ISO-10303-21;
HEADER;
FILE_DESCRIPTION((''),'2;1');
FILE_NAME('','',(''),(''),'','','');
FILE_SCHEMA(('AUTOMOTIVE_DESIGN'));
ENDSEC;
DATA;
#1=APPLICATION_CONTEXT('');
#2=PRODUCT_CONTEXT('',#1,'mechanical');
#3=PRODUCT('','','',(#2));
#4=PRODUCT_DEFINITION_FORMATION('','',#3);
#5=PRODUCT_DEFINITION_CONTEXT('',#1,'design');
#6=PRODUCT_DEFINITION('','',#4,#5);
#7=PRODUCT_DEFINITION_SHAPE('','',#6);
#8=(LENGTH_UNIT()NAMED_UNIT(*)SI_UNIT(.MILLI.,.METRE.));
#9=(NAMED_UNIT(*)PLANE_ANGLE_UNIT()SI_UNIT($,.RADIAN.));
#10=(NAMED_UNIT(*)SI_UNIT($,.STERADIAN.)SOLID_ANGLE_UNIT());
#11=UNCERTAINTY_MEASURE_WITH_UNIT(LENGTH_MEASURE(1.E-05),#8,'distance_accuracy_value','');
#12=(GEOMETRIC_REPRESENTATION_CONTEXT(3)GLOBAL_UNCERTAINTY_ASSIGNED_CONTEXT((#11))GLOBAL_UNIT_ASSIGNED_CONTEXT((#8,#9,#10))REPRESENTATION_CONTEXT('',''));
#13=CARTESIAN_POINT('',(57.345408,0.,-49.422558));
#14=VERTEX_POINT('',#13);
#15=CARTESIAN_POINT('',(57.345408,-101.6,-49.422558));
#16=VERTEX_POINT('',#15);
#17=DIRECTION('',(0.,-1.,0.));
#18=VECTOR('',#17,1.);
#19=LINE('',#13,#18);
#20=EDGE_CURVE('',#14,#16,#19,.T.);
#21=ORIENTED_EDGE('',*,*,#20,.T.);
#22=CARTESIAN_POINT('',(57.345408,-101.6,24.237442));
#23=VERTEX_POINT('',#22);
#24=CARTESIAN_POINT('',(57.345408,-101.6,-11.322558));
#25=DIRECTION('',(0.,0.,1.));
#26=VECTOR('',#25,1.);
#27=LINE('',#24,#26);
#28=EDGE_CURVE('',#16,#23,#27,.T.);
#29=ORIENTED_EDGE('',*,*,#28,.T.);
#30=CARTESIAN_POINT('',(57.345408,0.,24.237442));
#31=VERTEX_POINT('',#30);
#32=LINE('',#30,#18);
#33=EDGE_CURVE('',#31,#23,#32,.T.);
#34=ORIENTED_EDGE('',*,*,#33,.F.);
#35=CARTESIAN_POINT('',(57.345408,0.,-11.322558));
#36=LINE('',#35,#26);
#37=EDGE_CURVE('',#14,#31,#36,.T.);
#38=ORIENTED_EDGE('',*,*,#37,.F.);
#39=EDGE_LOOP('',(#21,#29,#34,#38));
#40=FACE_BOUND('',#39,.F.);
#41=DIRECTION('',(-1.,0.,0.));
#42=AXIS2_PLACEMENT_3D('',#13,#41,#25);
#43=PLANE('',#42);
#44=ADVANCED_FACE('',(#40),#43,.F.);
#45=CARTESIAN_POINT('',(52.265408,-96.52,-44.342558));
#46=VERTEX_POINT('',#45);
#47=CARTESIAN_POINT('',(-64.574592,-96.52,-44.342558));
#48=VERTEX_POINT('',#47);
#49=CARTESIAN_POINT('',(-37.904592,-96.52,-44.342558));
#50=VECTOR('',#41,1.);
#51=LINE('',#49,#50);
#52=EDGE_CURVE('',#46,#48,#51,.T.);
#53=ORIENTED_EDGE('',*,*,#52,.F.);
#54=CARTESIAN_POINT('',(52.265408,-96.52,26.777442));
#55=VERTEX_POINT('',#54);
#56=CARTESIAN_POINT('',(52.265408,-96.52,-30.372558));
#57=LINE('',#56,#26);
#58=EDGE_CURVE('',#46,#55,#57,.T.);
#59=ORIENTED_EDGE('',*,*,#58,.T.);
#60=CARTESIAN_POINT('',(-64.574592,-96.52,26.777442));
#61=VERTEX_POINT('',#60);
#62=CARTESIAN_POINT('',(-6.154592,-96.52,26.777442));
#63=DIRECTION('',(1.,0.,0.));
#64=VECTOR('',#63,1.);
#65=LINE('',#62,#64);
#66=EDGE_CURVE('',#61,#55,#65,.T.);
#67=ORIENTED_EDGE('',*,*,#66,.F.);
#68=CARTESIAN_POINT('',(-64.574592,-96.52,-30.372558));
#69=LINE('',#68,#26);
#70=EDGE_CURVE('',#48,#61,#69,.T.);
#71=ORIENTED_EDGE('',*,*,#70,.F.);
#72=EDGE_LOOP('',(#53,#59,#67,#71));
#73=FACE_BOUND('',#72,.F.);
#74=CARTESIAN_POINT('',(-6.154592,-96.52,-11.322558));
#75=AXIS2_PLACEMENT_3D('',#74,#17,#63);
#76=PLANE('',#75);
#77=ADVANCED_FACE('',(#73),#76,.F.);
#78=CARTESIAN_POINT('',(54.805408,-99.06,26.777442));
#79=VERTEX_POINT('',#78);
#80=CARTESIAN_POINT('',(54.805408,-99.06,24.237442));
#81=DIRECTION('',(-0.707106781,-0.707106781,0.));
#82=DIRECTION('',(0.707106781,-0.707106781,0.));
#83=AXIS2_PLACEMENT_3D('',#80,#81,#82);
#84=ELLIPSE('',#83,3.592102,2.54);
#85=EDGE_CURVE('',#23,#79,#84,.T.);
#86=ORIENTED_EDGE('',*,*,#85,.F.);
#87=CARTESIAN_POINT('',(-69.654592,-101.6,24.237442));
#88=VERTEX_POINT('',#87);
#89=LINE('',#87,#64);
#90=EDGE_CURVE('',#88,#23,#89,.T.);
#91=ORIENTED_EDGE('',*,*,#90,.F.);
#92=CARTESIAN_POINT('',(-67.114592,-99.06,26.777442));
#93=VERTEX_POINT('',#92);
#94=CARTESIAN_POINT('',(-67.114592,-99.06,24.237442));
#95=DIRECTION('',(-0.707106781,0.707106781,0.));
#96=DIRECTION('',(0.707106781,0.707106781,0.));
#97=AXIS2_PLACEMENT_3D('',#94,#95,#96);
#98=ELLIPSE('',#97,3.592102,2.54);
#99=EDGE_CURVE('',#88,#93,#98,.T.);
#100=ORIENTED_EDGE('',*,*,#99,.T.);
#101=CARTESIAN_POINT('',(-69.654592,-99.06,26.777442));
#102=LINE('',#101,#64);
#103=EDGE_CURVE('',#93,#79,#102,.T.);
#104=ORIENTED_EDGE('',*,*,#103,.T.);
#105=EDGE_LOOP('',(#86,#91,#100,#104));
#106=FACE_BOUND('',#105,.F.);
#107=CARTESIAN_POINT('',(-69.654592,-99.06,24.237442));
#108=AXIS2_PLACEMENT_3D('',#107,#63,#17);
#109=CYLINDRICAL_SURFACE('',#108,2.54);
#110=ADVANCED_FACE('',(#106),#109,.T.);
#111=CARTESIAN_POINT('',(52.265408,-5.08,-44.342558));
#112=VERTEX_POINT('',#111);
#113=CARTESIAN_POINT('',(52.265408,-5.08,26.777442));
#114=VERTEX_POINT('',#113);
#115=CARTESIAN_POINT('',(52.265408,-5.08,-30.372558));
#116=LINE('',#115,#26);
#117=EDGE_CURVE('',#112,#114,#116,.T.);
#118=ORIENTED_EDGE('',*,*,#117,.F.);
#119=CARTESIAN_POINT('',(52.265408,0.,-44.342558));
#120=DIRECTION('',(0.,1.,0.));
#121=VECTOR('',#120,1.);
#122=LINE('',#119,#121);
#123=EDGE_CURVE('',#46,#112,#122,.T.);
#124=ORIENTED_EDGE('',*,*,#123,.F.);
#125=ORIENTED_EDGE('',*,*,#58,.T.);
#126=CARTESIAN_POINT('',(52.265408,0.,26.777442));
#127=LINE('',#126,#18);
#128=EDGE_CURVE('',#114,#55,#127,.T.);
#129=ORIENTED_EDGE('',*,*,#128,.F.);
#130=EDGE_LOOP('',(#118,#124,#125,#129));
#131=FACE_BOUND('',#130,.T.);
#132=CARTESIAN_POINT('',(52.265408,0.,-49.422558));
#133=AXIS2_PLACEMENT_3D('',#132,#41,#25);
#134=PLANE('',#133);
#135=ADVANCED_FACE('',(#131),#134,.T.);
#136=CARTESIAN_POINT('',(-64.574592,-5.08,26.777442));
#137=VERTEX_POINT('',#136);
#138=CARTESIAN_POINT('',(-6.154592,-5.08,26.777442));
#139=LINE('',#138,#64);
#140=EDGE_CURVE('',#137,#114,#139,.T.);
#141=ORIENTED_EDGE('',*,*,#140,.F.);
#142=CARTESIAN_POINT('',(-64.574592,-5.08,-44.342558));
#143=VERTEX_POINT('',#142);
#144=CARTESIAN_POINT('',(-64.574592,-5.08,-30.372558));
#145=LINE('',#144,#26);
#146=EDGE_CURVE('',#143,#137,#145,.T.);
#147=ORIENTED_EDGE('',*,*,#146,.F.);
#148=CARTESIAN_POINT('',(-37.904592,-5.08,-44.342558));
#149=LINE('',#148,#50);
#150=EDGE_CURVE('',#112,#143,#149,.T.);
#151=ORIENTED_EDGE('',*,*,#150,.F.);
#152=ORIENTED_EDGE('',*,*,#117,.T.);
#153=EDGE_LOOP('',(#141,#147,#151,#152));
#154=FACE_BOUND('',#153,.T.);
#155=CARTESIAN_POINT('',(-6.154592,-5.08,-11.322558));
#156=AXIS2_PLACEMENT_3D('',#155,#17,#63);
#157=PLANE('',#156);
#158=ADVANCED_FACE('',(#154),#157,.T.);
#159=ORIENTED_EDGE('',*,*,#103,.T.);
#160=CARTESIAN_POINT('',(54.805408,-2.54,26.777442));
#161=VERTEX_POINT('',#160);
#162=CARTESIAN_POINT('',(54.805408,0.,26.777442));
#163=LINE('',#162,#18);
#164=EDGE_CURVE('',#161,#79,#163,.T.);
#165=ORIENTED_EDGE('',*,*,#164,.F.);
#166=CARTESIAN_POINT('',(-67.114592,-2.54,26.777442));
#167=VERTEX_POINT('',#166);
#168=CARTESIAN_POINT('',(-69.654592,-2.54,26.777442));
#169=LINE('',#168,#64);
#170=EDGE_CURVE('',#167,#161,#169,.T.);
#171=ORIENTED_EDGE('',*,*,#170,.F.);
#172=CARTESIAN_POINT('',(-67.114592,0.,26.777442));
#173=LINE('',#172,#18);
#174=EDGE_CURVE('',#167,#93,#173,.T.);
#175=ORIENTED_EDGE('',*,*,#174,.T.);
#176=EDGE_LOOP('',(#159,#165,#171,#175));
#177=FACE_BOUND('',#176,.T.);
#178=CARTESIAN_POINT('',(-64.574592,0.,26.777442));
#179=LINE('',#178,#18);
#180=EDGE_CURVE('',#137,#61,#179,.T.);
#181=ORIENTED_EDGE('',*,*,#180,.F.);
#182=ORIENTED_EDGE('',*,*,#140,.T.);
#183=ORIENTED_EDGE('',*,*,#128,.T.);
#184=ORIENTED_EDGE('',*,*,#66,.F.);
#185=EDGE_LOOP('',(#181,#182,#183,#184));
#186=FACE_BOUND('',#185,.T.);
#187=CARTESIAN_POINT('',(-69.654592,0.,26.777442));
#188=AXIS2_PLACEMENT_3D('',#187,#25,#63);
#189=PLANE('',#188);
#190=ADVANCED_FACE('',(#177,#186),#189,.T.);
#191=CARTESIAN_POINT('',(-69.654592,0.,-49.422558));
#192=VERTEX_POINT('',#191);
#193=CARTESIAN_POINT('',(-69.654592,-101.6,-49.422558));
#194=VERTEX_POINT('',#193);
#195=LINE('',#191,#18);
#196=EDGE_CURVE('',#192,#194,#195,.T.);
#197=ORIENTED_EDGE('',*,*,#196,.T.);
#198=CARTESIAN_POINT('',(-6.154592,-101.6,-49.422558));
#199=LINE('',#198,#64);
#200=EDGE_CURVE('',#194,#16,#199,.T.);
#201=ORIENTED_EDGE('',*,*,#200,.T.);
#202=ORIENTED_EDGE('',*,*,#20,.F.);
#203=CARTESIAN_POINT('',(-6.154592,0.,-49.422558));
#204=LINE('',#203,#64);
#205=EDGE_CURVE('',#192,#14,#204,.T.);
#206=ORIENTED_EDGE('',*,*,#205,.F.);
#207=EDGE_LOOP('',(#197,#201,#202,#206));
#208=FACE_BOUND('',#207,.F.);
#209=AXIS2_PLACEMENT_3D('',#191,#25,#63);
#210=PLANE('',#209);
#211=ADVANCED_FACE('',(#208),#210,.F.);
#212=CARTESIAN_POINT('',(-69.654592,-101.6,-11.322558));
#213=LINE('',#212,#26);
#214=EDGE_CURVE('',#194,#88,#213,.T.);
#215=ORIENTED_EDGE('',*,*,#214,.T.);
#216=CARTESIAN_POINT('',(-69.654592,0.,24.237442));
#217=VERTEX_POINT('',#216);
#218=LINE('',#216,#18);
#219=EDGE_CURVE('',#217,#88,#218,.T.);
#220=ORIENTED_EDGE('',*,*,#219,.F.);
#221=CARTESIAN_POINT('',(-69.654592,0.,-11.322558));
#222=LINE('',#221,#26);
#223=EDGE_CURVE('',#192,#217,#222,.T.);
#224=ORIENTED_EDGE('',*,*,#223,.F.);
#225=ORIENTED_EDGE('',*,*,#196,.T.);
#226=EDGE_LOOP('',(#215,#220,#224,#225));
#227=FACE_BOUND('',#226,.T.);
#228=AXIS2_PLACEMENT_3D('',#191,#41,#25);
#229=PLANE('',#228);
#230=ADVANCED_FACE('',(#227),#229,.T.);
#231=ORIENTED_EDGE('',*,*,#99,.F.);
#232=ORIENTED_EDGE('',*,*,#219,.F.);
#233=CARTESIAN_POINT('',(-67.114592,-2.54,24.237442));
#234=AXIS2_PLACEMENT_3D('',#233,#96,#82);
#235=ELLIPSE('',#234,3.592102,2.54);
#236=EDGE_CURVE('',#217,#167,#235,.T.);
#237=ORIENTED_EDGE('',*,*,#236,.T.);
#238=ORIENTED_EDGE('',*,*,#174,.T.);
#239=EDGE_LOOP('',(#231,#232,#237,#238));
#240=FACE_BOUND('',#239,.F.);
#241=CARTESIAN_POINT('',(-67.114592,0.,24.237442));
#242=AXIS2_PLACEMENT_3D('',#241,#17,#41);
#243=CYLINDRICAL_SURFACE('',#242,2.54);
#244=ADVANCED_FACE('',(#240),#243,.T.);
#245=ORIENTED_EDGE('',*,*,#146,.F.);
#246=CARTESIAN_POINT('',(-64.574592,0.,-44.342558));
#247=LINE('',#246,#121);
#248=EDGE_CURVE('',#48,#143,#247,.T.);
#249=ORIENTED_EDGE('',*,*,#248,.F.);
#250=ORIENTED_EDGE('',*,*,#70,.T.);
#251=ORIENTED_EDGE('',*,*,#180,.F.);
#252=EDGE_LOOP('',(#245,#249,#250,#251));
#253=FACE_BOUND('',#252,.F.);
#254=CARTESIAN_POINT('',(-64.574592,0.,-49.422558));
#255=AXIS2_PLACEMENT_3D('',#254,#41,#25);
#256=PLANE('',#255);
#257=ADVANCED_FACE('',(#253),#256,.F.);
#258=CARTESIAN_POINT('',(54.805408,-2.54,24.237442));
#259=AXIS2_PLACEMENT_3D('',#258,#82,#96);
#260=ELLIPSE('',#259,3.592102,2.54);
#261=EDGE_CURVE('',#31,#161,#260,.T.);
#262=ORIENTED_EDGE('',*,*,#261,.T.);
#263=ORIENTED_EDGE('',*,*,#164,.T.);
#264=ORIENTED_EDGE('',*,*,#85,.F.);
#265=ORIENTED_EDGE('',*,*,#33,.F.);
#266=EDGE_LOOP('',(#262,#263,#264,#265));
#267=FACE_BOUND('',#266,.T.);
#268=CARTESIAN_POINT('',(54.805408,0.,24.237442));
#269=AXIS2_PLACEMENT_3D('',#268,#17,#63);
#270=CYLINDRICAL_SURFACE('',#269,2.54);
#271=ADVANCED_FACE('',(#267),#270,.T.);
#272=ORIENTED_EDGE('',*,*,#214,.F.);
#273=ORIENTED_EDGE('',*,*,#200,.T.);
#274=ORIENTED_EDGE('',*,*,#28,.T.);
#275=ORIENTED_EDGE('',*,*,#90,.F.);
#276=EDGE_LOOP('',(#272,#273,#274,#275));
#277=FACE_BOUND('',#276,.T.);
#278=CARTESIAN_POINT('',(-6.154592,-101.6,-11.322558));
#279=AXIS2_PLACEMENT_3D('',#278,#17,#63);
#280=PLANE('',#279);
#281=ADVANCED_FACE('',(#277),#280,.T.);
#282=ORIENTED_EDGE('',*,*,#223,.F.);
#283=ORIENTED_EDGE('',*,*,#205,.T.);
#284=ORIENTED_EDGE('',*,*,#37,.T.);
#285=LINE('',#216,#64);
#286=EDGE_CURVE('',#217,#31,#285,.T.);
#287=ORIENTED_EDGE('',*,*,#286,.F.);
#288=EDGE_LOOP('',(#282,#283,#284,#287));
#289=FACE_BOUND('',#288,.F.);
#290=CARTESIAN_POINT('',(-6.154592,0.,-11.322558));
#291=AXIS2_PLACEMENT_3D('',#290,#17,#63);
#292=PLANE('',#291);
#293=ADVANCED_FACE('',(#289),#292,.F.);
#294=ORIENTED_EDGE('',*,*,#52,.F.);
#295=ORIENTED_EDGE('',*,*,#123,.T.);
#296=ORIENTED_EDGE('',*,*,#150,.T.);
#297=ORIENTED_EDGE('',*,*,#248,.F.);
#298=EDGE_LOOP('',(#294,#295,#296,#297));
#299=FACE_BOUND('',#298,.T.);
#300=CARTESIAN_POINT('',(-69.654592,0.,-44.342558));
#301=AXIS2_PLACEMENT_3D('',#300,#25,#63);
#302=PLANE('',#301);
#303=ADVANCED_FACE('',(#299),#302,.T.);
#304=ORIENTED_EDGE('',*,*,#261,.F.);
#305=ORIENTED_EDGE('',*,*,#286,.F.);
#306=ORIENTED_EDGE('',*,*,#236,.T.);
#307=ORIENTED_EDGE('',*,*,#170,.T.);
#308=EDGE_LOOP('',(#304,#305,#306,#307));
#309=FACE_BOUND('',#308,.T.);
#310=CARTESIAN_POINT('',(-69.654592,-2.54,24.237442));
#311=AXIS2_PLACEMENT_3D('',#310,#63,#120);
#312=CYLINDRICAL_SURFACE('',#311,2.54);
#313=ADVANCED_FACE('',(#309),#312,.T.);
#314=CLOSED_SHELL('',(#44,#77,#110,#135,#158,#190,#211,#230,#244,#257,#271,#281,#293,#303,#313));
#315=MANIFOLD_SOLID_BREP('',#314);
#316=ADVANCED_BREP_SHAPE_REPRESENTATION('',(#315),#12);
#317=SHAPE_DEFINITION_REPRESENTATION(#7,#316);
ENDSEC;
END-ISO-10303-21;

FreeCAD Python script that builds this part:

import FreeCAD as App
import Part
import Sketcher

V = App.Vector
Q = App.Units.Quantity


def edges_at(feature, points):
    """Names of the edges that pass closest to the given points."""
    edges = feature.Shape.Edges
    near = lambda p: min(range(len(edges)), key=lambda i: edges[i].distToShape(Part.Vertex(*p))[0])
    return sorted({f"Edge{near(p) + 1}" for p in points})


def faces_at(feature, points):
    """Names of the faces that lie closest to the given points."""
    faces = feature.Shape.Faces
    near = lambda p: min(range(len(faces)), key=lambda i: faces[i].distToShape(Part.Vertex(*p))[0])
    return sorted({f"Face{near(p) + 1}" for p in points})


def add_polygon(sketch, points):
    """Adds a closed chain of lines whose ends are joined by coincident constraints."""
    first, n = sketch.GeometryCount, len(points)
    for a, b in zip(points, points[1:] + points[:1]):
        sketch.addGeometry(Part.LineSegment(App.Vector(*a, 0), App.Vector(*b, 0)), False)
    for i in range(n):
        sketch.addConstraint(Sketcher.Constraint("Coincident", first + i, 2, first + (i + 1) % n, 1))

doc = App.newDocument("Part")
body = doc.addObject("PartDesign::Body", "Body")

# Sketch on XZ plane
sketch1 = body.newObject("Sketcher::SketchObject", "Sketch")
sketch1.AttachmentSupport = (doc.getObject("XZ_Plane"), [""])
sketch1.MapMode = "FlatFace"
add_polygon(sketch1, [(-70, 27), (-70, -49), (57, -49), (57, 27)])  # lines 0-3
sketch1.addConstraint([
    Sketcher.Constraint("Vertical", 0),
    Sketcher.Constraint("Horizontal", 1),
    Sketcher.Constraint("Vertical", 2),
    Sketcher.Constraint("Horizontal", 3),
    Sketcher.Constraint("DistanceX", 1, 1, 1, 2, Q("5 in")),
    Sketcher.Constraint("DistanceY", 0, 2, 0, 1, Q("3 in")),
    Sketcher.Constraint("DistanceX", 0, 2, -1, 1, 69.654592),
    Sketcher.Constraint("DistanceY", 0, 2, -1, 1, 49.422558),
])
pad1 = body.newObject("PartDesign::Pad", "Pad")
pad1.Profile = sketch1
pad1.Length = Q("4 in")
doc.recompute()

thickness = body.newObject("PartDesign::Thickness", "Thickness")
thickness.Base = (pad1, faces_at(pad1, [(-6.155, -50.8, 26.777)]))
thickness.Value = Q("0.2 in")
thickness.Reversed = True
thickness.Join = "Arc"
doc.recompute()

fillet = body.newObject("PartDesign::Fillet", "Fillet")
fillet.Base = (thickness, edges_at(thickness, [
    (-6.155, -101.6, 26.777),
    (-69.655, -50.8, 26.777),
    (-6.155, 0, 26.777),
    (57.345, -50.8, 26.777),
]))
fillet.Radius = Q("0.1 in")

doc.recompute()
